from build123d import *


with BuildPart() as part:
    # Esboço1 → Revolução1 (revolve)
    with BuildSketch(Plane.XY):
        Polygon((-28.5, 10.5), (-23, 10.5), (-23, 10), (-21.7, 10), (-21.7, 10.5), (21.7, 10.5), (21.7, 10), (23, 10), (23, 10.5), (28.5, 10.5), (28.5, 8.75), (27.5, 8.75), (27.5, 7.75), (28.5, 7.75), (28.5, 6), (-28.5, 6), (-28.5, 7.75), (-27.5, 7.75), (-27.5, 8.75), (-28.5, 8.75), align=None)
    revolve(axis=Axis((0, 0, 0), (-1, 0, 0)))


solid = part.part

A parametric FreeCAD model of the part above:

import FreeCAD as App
import Part
import Sketcher

doc = App.newDocument("Part")
body = doc.addObject("PartDesign::Body", "Body")

# Sketch on XY plane
sketch1 = doc.addObject("Sketcher::SketchObject", "Sketch")
body.addObject(sketch1)
sketch1.AttachmentSupport = (doc.XY_Plane, [""])
sketch1.MapMode = "FlatFace"
sketch1.addGeometry([
    Part.LineSegment(App.Vector(-23, 10.5, 0), App.Vector(-28.5, 10.5, 0)),  # 0
    Part.LineSegment(App.Vector(-28.5, 10.5, 0), App.Vector(-28.5, 8.8, 0)),  # 1
    Part.LineSegment(App.Vector(-28.5, 8.8, 0), App.Vector(-27.5, 8.8, 0)),  # 2
    Part.LineSegment(App.Vector(-27.5, 8.8, 0), App.Vector(-27.5, 7.8, 0)),  # 3
    Part.LineSegment(App.Vector(-27.5, 7.8, 0), App.Vector(-28.5, 7.8, 0)),  # 4
    Part.LineSegment(App.Vector(-28.5, 7.8, 0), App.Vector(-28.5, 6, 0)),  # 5
    Part.LineSegment(App.Vector(-28.5, 6, 0), App.Vector(28.5, 6, 0)),  # 6
    Part.LineSegment(App.Vector(28.5, 6, 0), App.Vector(28.5, 7.8, 0)),  # 7
    Part.LineSegment(App.Vector(28.5, 7.8, 0), App.Vector(27.5, 7.8, 0)),  # 8
    Part.LineSegment(App.Vector(27.5, 7.8, 0), App.Vector(27.5, 8.8, 0)),  # 9
    Part.LineSegment(App.Vector(27.5, 8.8, 0), App.Vector(28.5, 8.8, 0)),  # 10
    Part.LineSegment(App.Vector(28.5, 8.8, 0), App.Vector(28.5, 10.5, 0)),  # 11
    Part.LineSegment(App.Vector(28.5, 10.5, 0), App.Vector(23, 10.5, 0)),  # 12
    Part.LineSegment(App.Vector(23, 10.5, 0), App.Vector(23, 10, 0)),  # 13
    Part.LineSegment(App.Vector(23, 10, 0), App.Vector(21.7, 10, 0)),  # 14
    Part.LineSegment(App.Vector(21.7, 10, 0), App.Vector(21.7, 10.5, 0)),  # 15
    Part.LineSegment(App.Vector(21.7, 10.5, 0), App.Vector(-21.7, 10.5, 0)),  # 16
    Part.LineSegment(App.Vector(-21.7, 10.5, 0), App.Vector(-21.7, 10, 0)),  # 17
    Part.LineSegment(App.Vector(-21.7, 10, 0), App.Vector(-23, 10, 0)),  # 18
    Part.LineSegment(App.Vector(-23, 10, 0), App.Vector(-23, 10.5, 0)),  # 19
], False)
sketch1.addConstraint([
    Sketcher.Constraint("Coincident", 0, 2, 1, 1),
    Sketcher.Constraint("Coincident", 1, 2, 2, 1),
    Sketcher.Constraint("Coincident", 2, 2, 3, 1),
    Sketcher.Constraint("Coincident", 3, 2, 4, 1),
    Sketcher.Constraint("Coincident", 4, 2, 5, 1),
    Sketcher.Constraint("Coincident", 5, 2, 6, 1),
    Sketcher.Constraint("Coincident", 6, 2, 7, 1),
    Sketcher.Constraint("Coincident", 7, 2, 8, 1),
    Sketcher.Constraint("Coincident", 8, 2, 9, 1),
    Sketcher.Constraint("Coincident", 9, 2, 10, 1),
    Sketcher.Constraint("Coincident", 10, 2, 11, 1),
    Sketcher.Constraint("Coincident", 11, 2, 12, 1),
    Sketcher.Constraint("Coincident", 12, 2, 13, 1),
    Sketcher.Constraint("Coincident", 13, 2, 14, 1),
    Sketcher.Constraint("Coincident", 14, 2, 15, 1),
    Sketcher.Constraint("Coincident", 15, 2, 16, 1),
    Sketcher.Constraint("Coincident", 16, 2, 17, 1),
    Sketcher.Constraint("Coincident", 17, 2, 18, 1),
    Sketcher.Constraint("Coincident", 18, 2, 19, 1),
    Sketcher.Constraint("Coincident", 19, 2, 0, 1),
    Sketcher.Constraint("Horizontal", 0),
    Sketcher.Constraint("Vertical", 1),
    Sketcher.Constraint("Horizontal", 2),
    Sketcher.Constraint("Vertical", 3),
    Sketcher.Constraint("Horizontal", 4),
    Sketcher.Constraint("Vertical", 5),
    Sketcher.Constraint("Horizontal", 6),
    Sketcher.Constraint("Vertical", 7),
    Sketcher.Constraint("Horizontal", 8),
    Sketcher.Constraint("Vertical", 9),
    Sketcher.Constraint("Horizontal", 10),
    Sketcher.Constraint("Vertical", 11),
    Sketcher.Constraint("Horizontal", 12),
    Sketcher.Constraint("Vertical", 13),
    Sketcher.Constraint("Horizontal", 14),
    Sketcher.Constraint("Vertical", 15),
    Sketcher.Constraint("Horizontal", 16),
    Sketcher.Constraint("Vertical", 17),
    Sketcher.Constraint("Horizontal", 18),
    Sketcher.Constraint("Vertical", 19),
    Sketcher.Constraint("Symmetric", 4, 2, 7, 2, -2),
    Sketcher.Constraint("Symmetric", 2, 2, 9, 2, -2),
    Sketcher.Constraint("Symmetric", 0, 2, 11, 2, -2),
    Sketcher.Constraint("Symmetric", 14, 2, 17, 2, -2),
    Sketcher.Constraint("Horizontal", 12, 2, 15, 2),
    Sketcher.Constraint("Vertical", 1, 2, 4, 2),
    Sketcher.Constraint("Equal", 0, 12),
    Sketcher.Constraint("Equal", 10, 3),
    Sketcher.Constraint("Equal", 1, 5),
    Sketcher.Constraint("DistanceX", 2, 1, 2, 2, 1.0),
    Sketcher.Constraint("DistanceX", 6, 1, 6, 2, 57.0),
    Sketcher.Constraint("DistanceX", 0, 2, 0, 1, 5.5),
    Sketcher.Constraint("DistanceX", 14, 2, 14, 1, 1.3),
    Sketcher.Constraint("DistanceY", 13, 2, 13, 1, 0.5),
    Sketcher.Constraint("DistanceY", -1, 1, 5, 2, 6.0),
    Sketcher.Constraint("DistanceY", -1, 1, 13, 2, 10.0),
])
revolution = doc.addObject("PartDesign::Revolution", "Revolution")
body.addObject(revolution)
revolution.Profile = sketch1
revolution.ReferenceAxis = (sketch1, ["H_Axis"])
revolution.Angle = 360

doc.recompute()
